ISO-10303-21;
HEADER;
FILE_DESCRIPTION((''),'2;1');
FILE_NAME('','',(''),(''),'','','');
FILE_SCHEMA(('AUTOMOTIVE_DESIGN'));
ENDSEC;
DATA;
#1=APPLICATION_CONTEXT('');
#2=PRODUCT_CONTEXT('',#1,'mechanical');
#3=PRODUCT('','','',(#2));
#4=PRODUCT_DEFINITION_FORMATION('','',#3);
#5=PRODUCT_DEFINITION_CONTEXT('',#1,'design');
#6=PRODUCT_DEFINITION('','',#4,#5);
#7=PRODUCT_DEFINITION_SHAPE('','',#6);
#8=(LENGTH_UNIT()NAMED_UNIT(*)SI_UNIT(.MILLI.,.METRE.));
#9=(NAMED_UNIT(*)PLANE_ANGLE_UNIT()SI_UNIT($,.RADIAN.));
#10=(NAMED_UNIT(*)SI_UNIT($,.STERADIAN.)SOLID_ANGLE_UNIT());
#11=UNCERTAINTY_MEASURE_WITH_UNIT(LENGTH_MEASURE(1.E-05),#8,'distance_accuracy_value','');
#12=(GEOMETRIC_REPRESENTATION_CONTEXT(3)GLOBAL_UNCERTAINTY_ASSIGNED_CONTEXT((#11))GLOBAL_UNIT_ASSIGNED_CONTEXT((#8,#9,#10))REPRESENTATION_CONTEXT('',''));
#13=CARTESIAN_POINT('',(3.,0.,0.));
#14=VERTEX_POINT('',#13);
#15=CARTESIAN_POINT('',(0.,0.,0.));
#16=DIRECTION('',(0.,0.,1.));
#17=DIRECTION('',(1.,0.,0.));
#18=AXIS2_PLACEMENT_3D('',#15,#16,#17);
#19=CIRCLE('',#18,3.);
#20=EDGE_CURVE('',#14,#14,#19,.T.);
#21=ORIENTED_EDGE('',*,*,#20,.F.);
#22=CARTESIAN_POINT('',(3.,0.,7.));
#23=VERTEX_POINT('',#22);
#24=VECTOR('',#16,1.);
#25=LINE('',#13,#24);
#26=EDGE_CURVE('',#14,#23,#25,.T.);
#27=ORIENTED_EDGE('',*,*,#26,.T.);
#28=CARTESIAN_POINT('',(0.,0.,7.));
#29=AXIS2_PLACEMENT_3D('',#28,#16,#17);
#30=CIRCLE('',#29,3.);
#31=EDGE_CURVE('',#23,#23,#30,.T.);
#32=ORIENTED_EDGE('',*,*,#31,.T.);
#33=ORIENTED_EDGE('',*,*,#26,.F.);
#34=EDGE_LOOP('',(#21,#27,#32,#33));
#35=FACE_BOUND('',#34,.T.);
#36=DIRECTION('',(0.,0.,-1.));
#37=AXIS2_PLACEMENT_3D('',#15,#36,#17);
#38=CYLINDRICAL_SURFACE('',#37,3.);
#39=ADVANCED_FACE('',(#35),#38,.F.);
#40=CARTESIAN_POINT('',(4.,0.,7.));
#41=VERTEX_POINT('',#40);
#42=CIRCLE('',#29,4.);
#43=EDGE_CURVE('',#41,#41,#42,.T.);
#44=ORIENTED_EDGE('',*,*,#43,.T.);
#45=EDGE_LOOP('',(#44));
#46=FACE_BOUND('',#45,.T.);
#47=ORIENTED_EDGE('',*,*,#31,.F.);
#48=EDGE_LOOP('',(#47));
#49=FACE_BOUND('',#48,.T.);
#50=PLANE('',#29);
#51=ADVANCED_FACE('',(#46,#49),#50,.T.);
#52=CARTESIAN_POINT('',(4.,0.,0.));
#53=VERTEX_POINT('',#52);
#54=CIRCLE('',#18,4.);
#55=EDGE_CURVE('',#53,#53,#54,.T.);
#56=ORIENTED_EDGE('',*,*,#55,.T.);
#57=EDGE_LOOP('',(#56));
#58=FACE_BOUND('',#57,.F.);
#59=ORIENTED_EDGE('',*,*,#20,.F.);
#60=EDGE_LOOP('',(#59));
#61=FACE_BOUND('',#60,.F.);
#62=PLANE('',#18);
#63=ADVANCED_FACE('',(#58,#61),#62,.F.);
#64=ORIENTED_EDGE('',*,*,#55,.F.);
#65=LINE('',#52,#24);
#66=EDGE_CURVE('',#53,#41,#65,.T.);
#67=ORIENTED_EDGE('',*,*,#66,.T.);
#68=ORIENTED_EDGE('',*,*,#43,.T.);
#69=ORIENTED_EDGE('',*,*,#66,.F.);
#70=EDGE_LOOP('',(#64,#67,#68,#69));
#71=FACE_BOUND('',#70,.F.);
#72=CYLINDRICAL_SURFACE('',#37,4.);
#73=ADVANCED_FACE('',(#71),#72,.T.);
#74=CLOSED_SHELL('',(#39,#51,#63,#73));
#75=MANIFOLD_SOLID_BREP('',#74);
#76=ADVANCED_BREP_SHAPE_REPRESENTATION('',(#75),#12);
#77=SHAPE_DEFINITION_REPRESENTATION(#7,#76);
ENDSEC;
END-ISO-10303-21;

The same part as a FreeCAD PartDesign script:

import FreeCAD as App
import Part
import Sketcher

doc = App.newDocument("Part")
body = doc.addObject("PartDesign::Body", "Body")

sketch1 = body.newObject("Sketcher::SketchObject", "Sketch")
sketch1.AttachmentSupport = (doc.getObject("XY_Plane"), [""])
sketch1.MapMode = "FlatFace"
sketch1.addGeometry([
    Part.Circle(App.Vector(0, 0, 0), App.Vector(0, 0, 1), 4),
    Part.Circle(App.Vector(0, 0, 0), App.Vector(0, 0, 1), 3),
], False)
sketch1.addConstraint([
    Sketcher.Constraint("Coincident", 0, 3, -1, 1),
    Sketcher.Constraint("Coincident", 1, 3, -1, 1),
    Sketcher.Constraint("Diameter", 0, 8.0),
    Sketcher.Constraint("Diameter", 1, 6.0),
])
pad1 = body.newObject("PartDesign::Pad", "Pad")
pad1.Profile = sketch1
pad1.Length = 7

doc.recompute()
